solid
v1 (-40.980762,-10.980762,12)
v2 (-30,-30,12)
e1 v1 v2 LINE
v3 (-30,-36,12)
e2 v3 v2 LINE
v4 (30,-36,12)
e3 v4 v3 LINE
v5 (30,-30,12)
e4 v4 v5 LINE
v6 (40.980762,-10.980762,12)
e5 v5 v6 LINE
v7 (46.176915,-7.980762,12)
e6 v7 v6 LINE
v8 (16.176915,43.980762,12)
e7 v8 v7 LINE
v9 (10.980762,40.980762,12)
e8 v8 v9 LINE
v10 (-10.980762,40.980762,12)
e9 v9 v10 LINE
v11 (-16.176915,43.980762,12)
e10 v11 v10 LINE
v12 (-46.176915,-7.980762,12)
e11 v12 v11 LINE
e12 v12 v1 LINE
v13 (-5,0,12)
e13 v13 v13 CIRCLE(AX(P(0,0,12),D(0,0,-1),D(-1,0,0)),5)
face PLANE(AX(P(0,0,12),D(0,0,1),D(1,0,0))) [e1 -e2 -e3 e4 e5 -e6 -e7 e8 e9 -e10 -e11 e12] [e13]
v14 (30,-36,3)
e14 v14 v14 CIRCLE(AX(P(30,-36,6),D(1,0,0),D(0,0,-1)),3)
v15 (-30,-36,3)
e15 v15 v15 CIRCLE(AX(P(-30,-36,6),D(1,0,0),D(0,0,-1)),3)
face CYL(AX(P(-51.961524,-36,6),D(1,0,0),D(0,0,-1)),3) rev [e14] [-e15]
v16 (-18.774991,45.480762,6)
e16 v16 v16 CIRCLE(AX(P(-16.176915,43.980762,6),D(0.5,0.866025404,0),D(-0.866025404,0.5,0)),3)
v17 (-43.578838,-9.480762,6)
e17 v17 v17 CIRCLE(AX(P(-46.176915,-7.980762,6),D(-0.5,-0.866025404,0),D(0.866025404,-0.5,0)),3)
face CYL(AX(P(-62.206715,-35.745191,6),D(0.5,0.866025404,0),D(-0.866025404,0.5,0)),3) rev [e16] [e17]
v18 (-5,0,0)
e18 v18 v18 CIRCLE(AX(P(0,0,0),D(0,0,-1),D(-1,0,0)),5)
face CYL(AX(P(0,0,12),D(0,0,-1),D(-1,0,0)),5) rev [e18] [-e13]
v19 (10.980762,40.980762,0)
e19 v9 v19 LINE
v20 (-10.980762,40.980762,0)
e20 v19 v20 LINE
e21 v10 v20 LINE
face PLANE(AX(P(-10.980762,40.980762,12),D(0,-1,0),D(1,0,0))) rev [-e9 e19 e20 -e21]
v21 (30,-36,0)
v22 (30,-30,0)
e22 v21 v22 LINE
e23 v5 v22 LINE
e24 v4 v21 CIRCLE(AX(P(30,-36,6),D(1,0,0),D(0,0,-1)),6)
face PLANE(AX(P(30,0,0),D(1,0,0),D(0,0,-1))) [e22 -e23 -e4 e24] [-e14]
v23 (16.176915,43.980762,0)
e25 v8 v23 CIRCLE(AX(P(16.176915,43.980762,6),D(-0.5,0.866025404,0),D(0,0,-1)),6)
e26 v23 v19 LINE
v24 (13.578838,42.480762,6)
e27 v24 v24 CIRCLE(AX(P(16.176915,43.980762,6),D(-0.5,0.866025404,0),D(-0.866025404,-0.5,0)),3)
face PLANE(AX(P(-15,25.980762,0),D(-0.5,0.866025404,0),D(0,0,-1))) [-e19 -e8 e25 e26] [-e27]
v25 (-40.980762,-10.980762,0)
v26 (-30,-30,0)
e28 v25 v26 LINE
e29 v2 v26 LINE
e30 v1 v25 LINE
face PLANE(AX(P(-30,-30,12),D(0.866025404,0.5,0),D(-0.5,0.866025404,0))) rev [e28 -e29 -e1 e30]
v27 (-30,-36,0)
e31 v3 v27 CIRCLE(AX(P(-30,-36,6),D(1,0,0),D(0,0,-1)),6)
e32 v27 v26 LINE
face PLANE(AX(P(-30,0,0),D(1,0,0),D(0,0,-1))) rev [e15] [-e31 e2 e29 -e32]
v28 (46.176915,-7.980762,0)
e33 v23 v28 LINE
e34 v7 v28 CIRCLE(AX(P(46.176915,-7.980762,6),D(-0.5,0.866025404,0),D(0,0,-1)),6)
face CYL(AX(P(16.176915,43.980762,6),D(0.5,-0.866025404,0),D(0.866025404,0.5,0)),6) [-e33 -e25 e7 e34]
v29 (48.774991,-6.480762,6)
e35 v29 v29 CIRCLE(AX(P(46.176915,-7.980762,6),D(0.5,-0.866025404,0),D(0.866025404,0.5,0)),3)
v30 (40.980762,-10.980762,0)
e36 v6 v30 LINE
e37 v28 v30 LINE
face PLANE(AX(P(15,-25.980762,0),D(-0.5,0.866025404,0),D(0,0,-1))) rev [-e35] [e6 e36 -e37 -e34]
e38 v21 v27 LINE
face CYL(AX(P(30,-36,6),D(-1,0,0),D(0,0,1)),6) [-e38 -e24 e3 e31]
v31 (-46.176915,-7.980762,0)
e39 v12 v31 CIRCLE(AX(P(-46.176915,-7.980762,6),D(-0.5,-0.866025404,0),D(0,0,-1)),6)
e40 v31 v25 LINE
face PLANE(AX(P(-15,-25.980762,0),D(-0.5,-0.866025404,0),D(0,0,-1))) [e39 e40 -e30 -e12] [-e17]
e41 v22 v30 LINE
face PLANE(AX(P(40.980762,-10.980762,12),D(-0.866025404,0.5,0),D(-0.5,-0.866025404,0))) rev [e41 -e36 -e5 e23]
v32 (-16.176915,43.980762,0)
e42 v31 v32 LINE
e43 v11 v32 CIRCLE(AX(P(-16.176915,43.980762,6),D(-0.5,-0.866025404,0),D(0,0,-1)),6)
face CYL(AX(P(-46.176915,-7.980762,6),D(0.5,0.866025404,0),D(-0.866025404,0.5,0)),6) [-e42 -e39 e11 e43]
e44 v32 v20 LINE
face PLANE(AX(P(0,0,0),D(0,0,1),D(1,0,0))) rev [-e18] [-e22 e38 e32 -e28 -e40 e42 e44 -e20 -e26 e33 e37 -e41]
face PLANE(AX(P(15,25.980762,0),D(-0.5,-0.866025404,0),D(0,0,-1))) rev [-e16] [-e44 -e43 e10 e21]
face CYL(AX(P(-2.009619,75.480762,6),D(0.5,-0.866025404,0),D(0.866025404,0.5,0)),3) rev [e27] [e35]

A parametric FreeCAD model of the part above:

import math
import FreeCAD as App
import Part
import Sketcher
from FreeCAD import Vector
Q = App.Units.Quantity


def add_polygon(sketch, points):
    """Adds a closed chain of lines whose ends are joined by coincident constraints."""
    first, n = sketch.GeometryCount, len(points)
    for a, b in zip(points, points[1:] + points[:1]):
        sketch.addGeometry(Part.LineSegment(App.Vector(*a, 0), App.Vector(*b, 0)), False)
    for i in range(n):
        sketch.addConstraint(Sketcher.Constraint("Coincident", first + i, 2, first + (i + 1) % n, 1))

doc = App.newDocument("Part")
params = doc.addObject("Spreadsheet::Sheet", "Params")
for row, (alias, value) in enumerate([
    ("pad1_length", "12 mm"),
    ("sketch2_radius", "6 mm"),
    ("sketch2_width", "6 mm"),
    ("pad2_length", "60 mm"),
    ("sketch3_diameter", "6 mm"),
    ("sketch4_diameter", "10 mm"),
    ("sketch6_diameter", "6 mm"),
    ("sketch7_diameter", "6 mm"),
], start=1):
    params.set(f"A{row}", alias)
    params.set(f"B{row}", "=" + value)
    params.setAlias(f"B{row}", alias)

body = doc.addObject("PartDesign::Body", "Body")

# Sketch on XY plane
sketch1 = doc.addObject("Sketcher::SketchObject", "Sketch")
body.addObject(sketch1)
sketch1.AttachmentSupport = (doc.XY_Plane, [""])
sketch1.MapMode = "FlatFace"
add_polygon(sketch1, [(0, 60), (-52, -30), (52, -30)])  # lines 0-2
sketch1.addConstraint([
    Sketcher.Constraint("Horizontal", 1),
    Sketcher.Constraint("PointOnObject", 2, 2, -2),
    Sketcher.Constraint("Equal", 0, 2),
    Sketcher.Constraint("Angle", 0, Q("-120 deg")),
    Sketcher.Constraint("DistanceY", 0, 2, -1, 1, Q("30 mm")),
    Sketcher.Constraint("DistanceY", -1, 1, 2, 2, Q("60 mm")),
])
pad1 = doc.addObject("PartDesign::Pad", "Pad")
body.addObject(pad1)
pad1.Profile = sketch1
pad1.setExpression("Length", "Params.pad1_length")

# Sketch on YZ plane
sketch2 = doc.addObject("Sketcher::SketchObject", "Sketch001")
body.addObject(sketch2)
sketch2.AttachmentSupport = (doc.YZ_Plane, [""])
sketch2.MapMode = "FlatFace"
sketch2.addGeometry([
    Part.ArcOfCircle(Part.Circle(Vector(-36, 6, 0), Vector(0, 0, 1), 6), math.radians(90), math.radians(270)),
    Part.LineSegment(Vector(-36, 0, 0), Vector(-30, 0, 0)),
    Part.LineSegment(Vector(-30, 0, 0), Vector(-30, 12, 0)),
    Part.LineSegment(Vector(-30, 12, 0), Vector(-36, 12, 0)),
], False)
sketch2.addConstraint([
    Sketcher.Constraint("Tangent", 0, 2, 1, 1),
    Sketcher.Constraint("Coincident", 1, 2, 2, 1),
    Sketcher.Constraint("Coincident", 2, 2, 3, 1),
    Sketcher.Constraint("Tangent", 3, 2, 0, 1),
    Sketcher.Constraint("Horizontal", 1),
    Sketcher.Constraint("Vertical", 2),
    Sketcher.Constraint("Horizontal", 3),
    Sketcher.Constraint("PointOnObject", 0, 2, -1),
    Sketcher.Constraint("Radius", 0, Q("6 mm")),
    Sketcher.Constraint("DistanceX", 1, 1, 1, 2, Q("6 mm")),
    Sketcher.Constraint("DistanceX", 0, 3, -1, 1, Q("36 mm")),
])
sketch2.setExpression("Constraints[8]", "Params.sketch2_radius")
sketch2.setExpression("Constraints[9]", "Params.sketch2_width")
pad2 = doc.addObject("PartDesign::Pad", "Pad001")
body.addObject(pad2)
pad2.Profile = sketch2
pad2.setExpression("Length", "Params.pad2_length")
pad2.Midplane = True

# Sketch on YZ plane
sketch3 = doc.addObject("Sketcher::SketchObject", "Sketch002")
body.addObject(sketch3)
sketch3.AttachmentSupport = (doc.YZ_Plane, [""])
sketch3.MapMode = "FlatFace"
sketch3.AttachmentOffset = App.Placement(Vector(0, 0, 30), App.Rotation())
sketch3.addGeometry(Part.Circle(Vector(-36, 6, 0), Vector(0, 0, 1), 3), False)
sketch3.addConstraint([
    Sketcher.Constraint("Diameter", 0, Q("6 mm")),
    Sketcher.Constraint("DistanceX", 0, 3, -1, 1, Q("36 mm")),
    Sketcher.Constraint("DistanceY", -1, 1, 0, 3, Q("6 mm")),
])
sketch3.setExpression("Constraints[0]", "Params.sketch3_diameter")
pocket1 = doc.addObject("PartDesign::Pocket", "Pocket")
body.addObject(pocket1)
pocket1.Profile = sketch3
pocket1.Type = "ThroughAll"

# Sketch on XY plane
sketch4 = doc.addObject("Sketcher::SketchObject", "Sketch003")
body.addObject(sketch4)
sketch4.AttachmentSupport = (doc.XY_Plane, [""])
sketch4.MapMode = "FlatFace"
sketch4.addGeometry(Part.Circle(Vector(0, 0, 0), Vector(0, 0, 1), 5), False)
sketch4.addConstraint([
    Sketcher.Constraint("Coincident", 0, 3, -1, 1),
    Sketcher.Constraint("Diameter", 0, Q("10 mm")),
])
sketch4.setExpression("Constraints[1]", "Params.sketch4_diameter")
pocket2 = doc.addObject("PartDesign::Pocket", "Pocket001")
body.addObject(pocket2)
pocket2.Profile = sketch4
pocket2.Type = "ThroughAll"
pocket2.Reversed = True

# Sketch on XY plane
sketch5 = doc.addObject("Sketcher::SketchObject", "Sketch004")
body.addObject(sketch5)
sketch5.AttachmentSupport = (doc.XY_Plane, [""])
sketch5.MapMode = "FlatFace"
add_polygon(sketch5, [(52, -30), (30, -30), (41, -11)])  # lines 0-2
add_polygon(sketch5, [(11, 41), (-11, 41), (0, 60)])  # lines 3-5
add_polygon(sketch5, [(-41, -11), (-30, -30), (-52, -30)])  # lines 6-8
sketch5.addConstraint([
    Sketcher.Constraint("Horizontal", 0),
    Sketcher.Constraint("Horizontal", 3),
    Sketcher.Constraint("Horizontal", 7),
    Sketcher.Constraint("Symmetric", 0, 2, 6, 2, -2),
    Sketcher.Constraint("Symmetric", 1, 2, 8, 2, -2),
    Sketcher.Constraint("PointOnObject", 4, 2, -2),
    Sketcher.Constraint("Parallel", 1, 4),
    Sketcher.Constraint("Parallel", 2, 5),
    Sketcher.Constraint("Parallel", 5, 6),
    Sketcher.Constraint("Parallel", 4, 8),
    Sketcher.Constraint("Equal", 0, 3),
    Sketcher.Constraint("Angle", 1, Q("60 deg")),
    Sketcher.Constraint("DistanceX", -1, 1, 0, 2, Q("30 mm")),
    Sketcher.Constraint("DistanceY", 0, 2, -1, 1, Q("30 mm")),
    Sketcher.Constraint("DistanceY", -1, 1, 4, 2, Q("60 mm")),
    Sketcher.Constraint("DistanceX", 0, 2, 0, 1, Q("21.961524 mm")),
])
pocket3 = doc.addObject("PartDesign::Pocket", "Pocket002")
body.addObject(pocket3)
pocket3.Profile = sketch5
pocket3.Type = "ThroughAll"
pocket3.Reversed = True
doc.recompute()

polarpattern = doc.addObject("PartDesign::PolarPattern", "PolarPattern")
body.addObject(polarpattern)
polarpattern.Originals = [pad2]
polarpattern.Axis = (doc.Z_Axis, [""])
polarpattern.Angle = 360
polarpattern.Occurrences = 3
body.Tip = polarpattern

# Sketch on an angled plane
sketch6 = doc.addObject("Sketcher::SketchObject", "Sketch005")
body.addObject(sketch6)
sketch6.Placement = App.Placement(Vector(15, -25.980762, 0), App.Rotation(Vector(0.866025404, 0.5, 0), Vector(0, 0, 1), Vector(0.5, -0.866025404, 0), "ZXY"))
sketch6.addGeometry(Part.Circle(Vector(36, 6, 0), Vector(0, 0, 1), 3), False)
sketch6.addConstraint([
    Sketcher.Constraint("Diameter", 0, Q("6 mm")),
    Sketcher.Constraint("DistanceX", -1, 1, 0, 3, Q("36 mm")),
    Sketcher.Constraint("DistanceY", -1, 1, 0, 3, Q("6 mm")),
])
sketch6.setExpression("Constraints[0]", "Params.sketch6_diameter")
pocket4 = doc.addObject("PartDesign::Pocket", "Pocket003")
body.addObject(pocket4)
pocket4.Profile = sketch6
pocket4.Type = "ThroughAll"

# Sketch on an angled plane
sketch7 = doc.addObject("Sketcher::SketchObject", "Sketch006")
body.addObject(sketch7)
sketch7.Placement = App.Placement(Vector(15, 25.980762, 0), App.Rotation(Vector(0.866025404, -0.5, 0), Vector(0, 0, -1), Vector(0.5, 0.866025404, 0), "ZXY"))
sketch7.addGeometry(Part.Circle(Vector(-36, -6, 0), Vector(0, 0, 1), 3), False)
sketch7.addConstraint([
    Sketcher.Constraint("Diameter", 0, Q("6 mm")),
    Sketcher.Constraint("DistanceX", 0, 3, -1, 1, Q("36 mm")),
    Sketcher.Constraint("DistanceY", 0, 3, -1, 1, Q("6 mm")),
])
sketch7.setExpression("Constraints[0]", "Params.sketch7_diameter")
pocket5 = doc.addObject("PartDesign::Pocket", "Pocket004")
body.addObject(pocket5)
pocket5.Profile = sketch7
pocket5.Type = "ThroughAll"

doc.recompute()
